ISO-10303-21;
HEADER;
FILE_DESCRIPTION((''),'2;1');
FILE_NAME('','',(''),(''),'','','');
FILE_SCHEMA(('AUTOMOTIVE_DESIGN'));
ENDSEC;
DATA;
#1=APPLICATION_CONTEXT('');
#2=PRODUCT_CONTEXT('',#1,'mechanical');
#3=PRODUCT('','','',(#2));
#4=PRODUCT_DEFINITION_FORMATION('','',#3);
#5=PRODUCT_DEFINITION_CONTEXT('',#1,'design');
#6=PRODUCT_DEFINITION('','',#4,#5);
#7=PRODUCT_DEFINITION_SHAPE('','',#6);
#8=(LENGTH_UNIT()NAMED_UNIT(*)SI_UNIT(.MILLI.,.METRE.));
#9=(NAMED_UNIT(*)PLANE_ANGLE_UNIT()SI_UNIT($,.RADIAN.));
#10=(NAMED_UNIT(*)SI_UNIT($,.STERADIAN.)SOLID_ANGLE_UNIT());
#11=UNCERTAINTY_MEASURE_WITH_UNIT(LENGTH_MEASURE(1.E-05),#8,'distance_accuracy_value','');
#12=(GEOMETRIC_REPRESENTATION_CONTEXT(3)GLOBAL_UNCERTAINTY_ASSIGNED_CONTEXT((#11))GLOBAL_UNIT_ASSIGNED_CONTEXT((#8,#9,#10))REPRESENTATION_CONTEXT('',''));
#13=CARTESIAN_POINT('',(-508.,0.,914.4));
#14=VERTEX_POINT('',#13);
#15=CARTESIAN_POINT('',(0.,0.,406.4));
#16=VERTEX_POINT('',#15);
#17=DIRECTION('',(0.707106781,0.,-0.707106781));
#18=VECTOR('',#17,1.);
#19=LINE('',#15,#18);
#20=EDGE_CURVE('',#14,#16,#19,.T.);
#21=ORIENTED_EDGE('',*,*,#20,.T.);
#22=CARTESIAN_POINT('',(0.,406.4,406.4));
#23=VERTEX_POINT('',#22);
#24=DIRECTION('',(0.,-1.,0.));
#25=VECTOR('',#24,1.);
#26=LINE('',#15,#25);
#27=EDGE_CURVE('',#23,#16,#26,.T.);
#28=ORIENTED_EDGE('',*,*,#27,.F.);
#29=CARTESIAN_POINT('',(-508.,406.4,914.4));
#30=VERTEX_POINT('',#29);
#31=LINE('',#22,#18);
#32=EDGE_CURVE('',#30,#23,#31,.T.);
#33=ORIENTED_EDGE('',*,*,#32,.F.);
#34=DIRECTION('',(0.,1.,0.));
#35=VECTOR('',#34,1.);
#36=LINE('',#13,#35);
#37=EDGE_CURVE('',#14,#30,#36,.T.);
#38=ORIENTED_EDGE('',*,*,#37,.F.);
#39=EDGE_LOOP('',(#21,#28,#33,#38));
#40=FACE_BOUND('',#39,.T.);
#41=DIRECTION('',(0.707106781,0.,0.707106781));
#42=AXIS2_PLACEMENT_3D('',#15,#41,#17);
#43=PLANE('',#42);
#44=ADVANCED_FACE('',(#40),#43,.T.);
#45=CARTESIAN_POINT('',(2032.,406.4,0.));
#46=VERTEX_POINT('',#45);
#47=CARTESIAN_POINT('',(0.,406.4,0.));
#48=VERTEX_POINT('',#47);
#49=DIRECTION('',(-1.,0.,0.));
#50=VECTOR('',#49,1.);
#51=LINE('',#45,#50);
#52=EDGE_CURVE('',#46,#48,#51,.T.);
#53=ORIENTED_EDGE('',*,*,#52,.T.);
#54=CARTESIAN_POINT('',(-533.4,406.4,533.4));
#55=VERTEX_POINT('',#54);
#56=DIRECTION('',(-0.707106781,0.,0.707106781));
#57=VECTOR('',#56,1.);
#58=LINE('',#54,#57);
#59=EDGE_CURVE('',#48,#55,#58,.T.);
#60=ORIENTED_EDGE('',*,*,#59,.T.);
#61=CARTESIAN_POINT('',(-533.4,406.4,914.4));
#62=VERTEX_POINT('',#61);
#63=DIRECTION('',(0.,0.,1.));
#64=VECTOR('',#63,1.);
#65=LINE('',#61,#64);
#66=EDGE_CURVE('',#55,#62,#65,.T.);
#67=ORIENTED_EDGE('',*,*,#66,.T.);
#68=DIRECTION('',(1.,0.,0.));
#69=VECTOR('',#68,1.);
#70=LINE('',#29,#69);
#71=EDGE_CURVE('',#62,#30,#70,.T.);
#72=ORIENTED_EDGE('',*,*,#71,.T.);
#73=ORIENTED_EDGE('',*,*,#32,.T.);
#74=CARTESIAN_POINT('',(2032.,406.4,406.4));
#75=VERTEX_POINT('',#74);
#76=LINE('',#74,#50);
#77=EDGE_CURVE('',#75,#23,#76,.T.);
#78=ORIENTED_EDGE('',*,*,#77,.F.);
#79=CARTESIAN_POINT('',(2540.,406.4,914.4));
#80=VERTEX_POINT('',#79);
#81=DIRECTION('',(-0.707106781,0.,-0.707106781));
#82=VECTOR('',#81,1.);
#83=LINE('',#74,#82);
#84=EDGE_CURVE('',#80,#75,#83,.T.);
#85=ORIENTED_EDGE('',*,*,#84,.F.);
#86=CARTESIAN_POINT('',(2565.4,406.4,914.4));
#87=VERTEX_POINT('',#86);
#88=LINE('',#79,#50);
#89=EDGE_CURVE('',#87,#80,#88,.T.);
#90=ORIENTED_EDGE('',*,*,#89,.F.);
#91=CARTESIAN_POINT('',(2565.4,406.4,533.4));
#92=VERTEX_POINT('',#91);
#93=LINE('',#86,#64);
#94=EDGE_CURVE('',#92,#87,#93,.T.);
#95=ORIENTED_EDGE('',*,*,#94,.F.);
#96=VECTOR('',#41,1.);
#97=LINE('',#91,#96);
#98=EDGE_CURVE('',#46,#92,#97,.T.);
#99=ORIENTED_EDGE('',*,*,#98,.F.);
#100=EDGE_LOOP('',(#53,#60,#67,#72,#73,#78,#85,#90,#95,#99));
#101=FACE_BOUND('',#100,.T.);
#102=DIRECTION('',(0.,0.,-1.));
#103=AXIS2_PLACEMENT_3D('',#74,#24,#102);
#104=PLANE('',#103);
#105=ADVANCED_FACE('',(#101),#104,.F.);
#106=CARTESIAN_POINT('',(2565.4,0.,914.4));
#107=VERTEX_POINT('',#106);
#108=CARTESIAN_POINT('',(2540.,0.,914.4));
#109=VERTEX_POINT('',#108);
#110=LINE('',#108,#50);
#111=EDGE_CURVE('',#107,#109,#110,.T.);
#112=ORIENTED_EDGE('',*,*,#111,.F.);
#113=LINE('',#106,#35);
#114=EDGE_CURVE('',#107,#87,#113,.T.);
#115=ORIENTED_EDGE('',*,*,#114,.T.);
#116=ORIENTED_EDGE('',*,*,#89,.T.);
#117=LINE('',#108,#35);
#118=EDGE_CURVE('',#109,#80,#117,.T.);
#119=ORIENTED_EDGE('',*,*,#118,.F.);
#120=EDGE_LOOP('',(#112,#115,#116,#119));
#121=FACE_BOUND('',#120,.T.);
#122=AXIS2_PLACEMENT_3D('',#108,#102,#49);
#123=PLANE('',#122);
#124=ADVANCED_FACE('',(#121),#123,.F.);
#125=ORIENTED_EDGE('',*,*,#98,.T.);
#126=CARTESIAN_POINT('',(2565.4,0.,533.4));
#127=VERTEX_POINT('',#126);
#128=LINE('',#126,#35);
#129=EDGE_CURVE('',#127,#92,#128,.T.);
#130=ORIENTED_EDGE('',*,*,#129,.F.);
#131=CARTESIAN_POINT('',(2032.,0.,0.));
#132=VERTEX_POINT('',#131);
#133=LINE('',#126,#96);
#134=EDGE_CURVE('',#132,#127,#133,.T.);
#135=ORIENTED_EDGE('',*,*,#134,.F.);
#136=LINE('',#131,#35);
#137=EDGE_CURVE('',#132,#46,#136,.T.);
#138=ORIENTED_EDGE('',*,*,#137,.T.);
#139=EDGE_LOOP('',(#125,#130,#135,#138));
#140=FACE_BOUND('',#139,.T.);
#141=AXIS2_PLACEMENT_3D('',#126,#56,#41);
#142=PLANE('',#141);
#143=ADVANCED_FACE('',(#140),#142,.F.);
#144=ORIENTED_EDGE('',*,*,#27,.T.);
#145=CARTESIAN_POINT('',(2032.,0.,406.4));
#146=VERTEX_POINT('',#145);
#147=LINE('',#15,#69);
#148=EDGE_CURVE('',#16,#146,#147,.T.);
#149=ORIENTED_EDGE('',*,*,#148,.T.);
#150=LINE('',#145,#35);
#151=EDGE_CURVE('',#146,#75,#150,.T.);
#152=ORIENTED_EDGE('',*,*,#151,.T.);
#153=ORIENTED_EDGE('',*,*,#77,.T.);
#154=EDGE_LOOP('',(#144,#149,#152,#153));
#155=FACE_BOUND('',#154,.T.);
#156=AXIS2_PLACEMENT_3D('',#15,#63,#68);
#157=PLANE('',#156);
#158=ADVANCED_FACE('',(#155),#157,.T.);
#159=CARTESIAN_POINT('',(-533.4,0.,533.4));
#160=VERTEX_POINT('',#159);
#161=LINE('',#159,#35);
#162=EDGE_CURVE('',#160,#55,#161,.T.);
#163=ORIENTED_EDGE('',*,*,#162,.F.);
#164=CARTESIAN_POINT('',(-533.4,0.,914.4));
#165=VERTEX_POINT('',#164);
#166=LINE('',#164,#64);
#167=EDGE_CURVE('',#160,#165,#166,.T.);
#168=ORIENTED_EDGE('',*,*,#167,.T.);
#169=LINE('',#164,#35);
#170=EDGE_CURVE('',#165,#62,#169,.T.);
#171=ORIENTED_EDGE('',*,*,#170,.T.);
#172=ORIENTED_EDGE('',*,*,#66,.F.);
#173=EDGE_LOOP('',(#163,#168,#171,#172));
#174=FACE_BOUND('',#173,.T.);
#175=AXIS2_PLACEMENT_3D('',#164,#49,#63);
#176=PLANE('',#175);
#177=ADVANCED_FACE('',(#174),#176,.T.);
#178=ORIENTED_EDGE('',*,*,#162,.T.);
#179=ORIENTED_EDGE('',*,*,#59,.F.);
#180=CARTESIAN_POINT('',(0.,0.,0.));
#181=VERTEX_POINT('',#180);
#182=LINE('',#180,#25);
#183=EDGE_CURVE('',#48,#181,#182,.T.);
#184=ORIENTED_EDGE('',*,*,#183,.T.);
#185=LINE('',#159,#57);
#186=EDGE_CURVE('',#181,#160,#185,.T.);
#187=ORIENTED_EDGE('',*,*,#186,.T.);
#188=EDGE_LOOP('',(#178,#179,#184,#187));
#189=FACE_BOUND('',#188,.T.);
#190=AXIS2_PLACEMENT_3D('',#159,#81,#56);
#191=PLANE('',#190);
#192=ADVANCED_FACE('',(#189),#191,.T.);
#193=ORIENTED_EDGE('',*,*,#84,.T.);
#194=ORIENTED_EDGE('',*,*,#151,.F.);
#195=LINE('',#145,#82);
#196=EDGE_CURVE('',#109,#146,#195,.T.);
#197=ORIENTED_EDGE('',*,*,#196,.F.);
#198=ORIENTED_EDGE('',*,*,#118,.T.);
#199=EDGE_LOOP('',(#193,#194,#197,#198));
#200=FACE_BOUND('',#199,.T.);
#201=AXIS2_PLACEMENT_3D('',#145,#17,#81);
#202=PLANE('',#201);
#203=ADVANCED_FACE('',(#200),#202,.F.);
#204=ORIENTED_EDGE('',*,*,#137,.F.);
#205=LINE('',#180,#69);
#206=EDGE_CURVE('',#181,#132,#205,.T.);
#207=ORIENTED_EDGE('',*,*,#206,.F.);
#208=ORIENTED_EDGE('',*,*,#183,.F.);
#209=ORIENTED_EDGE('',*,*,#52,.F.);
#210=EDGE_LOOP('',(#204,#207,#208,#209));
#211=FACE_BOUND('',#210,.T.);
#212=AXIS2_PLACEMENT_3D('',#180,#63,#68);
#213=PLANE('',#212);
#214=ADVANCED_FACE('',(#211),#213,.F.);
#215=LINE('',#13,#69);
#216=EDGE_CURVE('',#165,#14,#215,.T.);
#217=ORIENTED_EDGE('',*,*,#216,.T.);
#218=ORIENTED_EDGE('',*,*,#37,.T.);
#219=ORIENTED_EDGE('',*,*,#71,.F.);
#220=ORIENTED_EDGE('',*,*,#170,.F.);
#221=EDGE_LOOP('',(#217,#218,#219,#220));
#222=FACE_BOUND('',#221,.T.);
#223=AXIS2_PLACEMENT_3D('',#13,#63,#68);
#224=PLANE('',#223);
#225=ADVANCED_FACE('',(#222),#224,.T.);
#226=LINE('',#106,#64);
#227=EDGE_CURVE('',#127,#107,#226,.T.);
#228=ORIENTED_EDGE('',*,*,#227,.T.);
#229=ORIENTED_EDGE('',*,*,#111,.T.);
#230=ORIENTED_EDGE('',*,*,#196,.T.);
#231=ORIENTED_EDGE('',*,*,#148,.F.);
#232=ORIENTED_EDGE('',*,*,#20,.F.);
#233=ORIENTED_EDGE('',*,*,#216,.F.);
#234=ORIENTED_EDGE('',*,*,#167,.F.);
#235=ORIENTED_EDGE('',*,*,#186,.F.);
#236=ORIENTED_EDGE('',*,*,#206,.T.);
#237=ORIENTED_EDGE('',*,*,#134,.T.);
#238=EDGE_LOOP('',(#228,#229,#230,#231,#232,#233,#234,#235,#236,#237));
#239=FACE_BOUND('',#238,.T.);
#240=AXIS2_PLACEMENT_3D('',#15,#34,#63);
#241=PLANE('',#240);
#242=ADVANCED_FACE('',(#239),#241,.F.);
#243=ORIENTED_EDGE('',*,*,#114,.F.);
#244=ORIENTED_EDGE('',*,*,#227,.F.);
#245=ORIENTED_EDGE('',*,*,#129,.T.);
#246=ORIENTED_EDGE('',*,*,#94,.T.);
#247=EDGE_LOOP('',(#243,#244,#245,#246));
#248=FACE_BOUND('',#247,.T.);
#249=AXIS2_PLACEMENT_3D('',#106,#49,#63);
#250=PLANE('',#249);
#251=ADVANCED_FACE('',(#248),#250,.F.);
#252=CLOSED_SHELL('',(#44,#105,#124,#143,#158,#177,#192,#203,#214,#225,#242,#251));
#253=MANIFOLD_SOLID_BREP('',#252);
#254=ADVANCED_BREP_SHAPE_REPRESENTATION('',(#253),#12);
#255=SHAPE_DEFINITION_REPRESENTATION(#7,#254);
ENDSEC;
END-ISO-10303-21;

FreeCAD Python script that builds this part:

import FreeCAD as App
import Part
import Sketcher

V = App.Vector
Q = App.Units.Quantity

doc = App.newDocument("Part")
body = doc.addObject("PartDesign::Body", "Body")

# Sketch on XY plane
sketch1 = body.newObject("Sketcher::SketchObject", "Sketch")
sketch1.AttachmentSupport = (doc.getObject("XY_Plane"), [""])
sketch1.MapMode = "FlatFace"
sketch1.addGeometry([
    Part.LineSegment(V(0, 406.4, 0), V(0, 0, 0)),
    Part.LineSegment(V(0, 0, 0), V(2032, 0, 0)),
    Part.LineSegment(V(2032, 0, 0), V(2032, 406.4, 0)),
    Part.LineSegment(V(2032, 406.4, 0), V(0, 406.4, 0)),
], False)
sketch1.addConstraint([
    Sketcher.Constraint("Coincident", 0, 2, 1, 1),
    Sketcher.Constraint("Coincident", 1, 2, 2, 1),
    Sketcher.Constraint("Coincident", 2, 2, 3, 1),
    Sketcher.Constraint("Coincident", 3, 2, 0, 1),
    Sketcher.Constraint("Vertical", 0),
    Sketcher.Constraint("Horizontal", 1),
    Sketcher.Constraint("Vertical", 2),
    Sketcher.Constraint("Horizontal", 3),
    Sketcher.Constraint("Coincident", 0, 2, -1, 1),
    Sketcher.Constraint("DistanceX", 1, 1, 1, 2, Q("80 in")),
    Sketcher.Constraint("DistanceY", 0, 2, 0, 1, Q("16 in")),
])
pad1 = body.newObject("PartDesign::Pad", "Pad")
pad1.Profile = sketch1
pad1.Length = Q("16 in")

# Sketch on XZ plane
sketch2 = body.newObject("Sketcher::SketchObject", "Sketch001")
sketch2.AttachmentSupport = (doc.getObject("XZ_Plane"), [""])
sketch2.MapMode = "FlatFace"
sketch2.AttachmentOffset = App.Placement(V(0, 0, -16 * 25.4), App.Rotation())
sketch2.addGeometry([
    Part.LineSegment(V(-508, 914.4, 0), V(0, 406.4, 0)),  # 0
    Part.LineSegment(V(0, 406.4, 0), V(0, 0, 0)),  # 1
    Part.LineSegment(V(0, 0, 0), V(-533.4, 533.4, 0)),  # 2
    Part.LineSegment(V(-533.4, 533.4, 0), V(-533.4, 914.4, 0)),  # 3
    Part.LineSegment(V(-533.4, 914.4, 0), V(-508, 914.4, 0)),  # 4
], False)
sketch2.addConstraint([
    Sketcher.Constraint("Coincident", 0, 2, 1, 1),
    Sketcher.Constraint("Coincident", 1, 2, 2, 1),
    Sketcher.Constraint("Coincident", 2, 2, 3, 1),
    Sketcher.Constraint("Coincident", 3, 2, 4, 1),
    Sketcher.Constraint("Coincident", 4, 2, 0, 1),
    Sketcher.Constraint("Vertical", 1),
    Sketcher.Constraint("Vertical", 3),
    Sketcher.Constraint("Horizontal", 4),
    Sketcher.Constraint("Coincident", 1, 2, -1, 1),
    Sketcher.Constraint("Parallel", 0, 2),
    Sketcher.Constraint("DistanceX", 4, 1, 4, 2, Q("1 in")),
    Sketcher.Constraint("DistanceY", 1, 2, 1, 1, Q("16 in")),
    Sketcher.Constraint("DistanceY", 3, 1, 3, 2, Q("15 in")),
    Sketcher.Constraint("DistanceX", 2, 2, -1, 1, Q("21 in")),
])
pad2 = body.newObject("PartDesign::Pad", "Pad001")
pad2.Profile = sketch2
pad2.Length = Q("16 in")
doc.recompute()

datumplane = body.newObject("PartDesign::Plane", "DatumPlane")
datumplane.AttachmentSupport = (doc.getObject("YZ_Plane"), [""])
datumplane.MapMode = "FlatFace"
datumplane.AttachmentOffset = App.Placement(V(0, 0, 40 * 25.4), App.Rotation())
mirrored = body.newObject("PartDesign::Mirrored", "Mirrored")
mirrored.Originals = [pad2]
mirrored.MirrorPlane = (datumplane, [""])
body.Tip = mirrored

doc.recompute()
